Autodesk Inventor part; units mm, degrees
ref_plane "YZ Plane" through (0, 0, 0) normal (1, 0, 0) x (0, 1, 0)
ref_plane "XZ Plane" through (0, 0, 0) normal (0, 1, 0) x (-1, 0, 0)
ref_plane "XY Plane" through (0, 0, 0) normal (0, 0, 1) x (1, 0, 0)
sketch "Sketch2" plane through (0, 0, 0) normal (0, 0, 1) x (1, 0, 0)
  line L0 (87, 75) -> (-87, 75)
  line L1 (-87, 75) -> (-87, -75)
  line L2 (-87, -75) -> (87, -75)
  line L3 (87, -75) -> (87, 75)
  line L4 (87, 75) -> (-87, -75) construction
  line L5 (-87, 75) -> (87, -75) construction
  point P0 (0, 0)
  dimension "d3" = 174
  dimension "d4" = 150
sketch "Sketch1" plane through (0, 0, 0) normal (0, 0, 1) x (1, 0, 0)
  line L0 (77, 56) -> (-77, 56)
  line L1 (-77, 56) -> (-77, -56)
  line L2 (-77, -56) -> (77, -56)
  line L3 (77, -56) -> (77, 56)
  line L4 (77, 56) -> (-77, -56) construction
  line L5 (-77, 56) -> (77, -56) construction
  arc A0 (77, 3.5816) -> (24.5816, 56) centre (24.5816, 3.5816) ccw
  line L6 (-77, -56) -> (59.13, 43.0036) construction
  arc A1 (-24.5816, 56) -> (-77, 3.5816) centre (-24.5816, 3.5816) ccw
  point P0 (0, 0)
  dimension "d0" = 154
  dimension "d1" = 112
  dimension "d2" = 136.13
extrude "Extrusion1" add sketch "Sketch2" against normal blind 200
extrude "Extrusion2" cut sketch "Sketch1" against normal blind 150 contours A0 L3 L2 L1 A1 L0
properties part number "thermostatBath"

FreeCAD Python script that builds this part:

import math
import FreeCAD as App
import Part
import Sketcher
from FreeCAD import Vector


def add_polygon(sketch, points):
    """Adds a closed chain of lines whose ends are joined by coincident constraints."""
    first, n = sketch.GeometryCount, len(points)
    for a, b in zip(points, points[1:] + points[:1]):
        sketch.addGeometry(Part.LineSegment(App.Vector(*a, 0), App.Vector(*b, 0)), False)
    for i in range(n):
        sketch.addConstraint(Sketcher.Constraint("Coincident", first + i, 2, first + (i + 1) % n, 1))

doc = App.newDocument("Part")
params = doc.addObject("Spreadsheet::Sheet", "Params")
for row, (alias, value) in enumerate([
    ("sketch1_width", "174 mm"),
    ("sketch1_height", "150 mm"),
    ("pad1_length", "200 mm"),
    ("sketch2_width", "154 mm"),
    ("pocket1_length", "150 mm"),
], start=1):
    params.set(f"A{row}", alias)
    params.set(f"B{row}", "=" + value)
    params.setAlias(f"B{row}", alias)

body = doc.addObject("PartDesign::Body", "Body")

# Sketch on XY plane
sketch1 = body.newObject("Sketcher::SketchObject", "Sketch")
sketch1.AttachmentSupport = (doc.getObject("XY_Plane"), [""])
sketch1.MapMode = "FlatFace"
add_polygon(sketch1, [(87, -75), (87, 75), (-87, 75), (-87, -75)])  # lines 0-3
sketch1.addConstraint([
    Sketcher.Constraint("Vertical", 0),
    Sketcher.Constraint("Horizontal", 1),
    Sketcher.Constraint("Vertical", 2),
    Sketcher.Constraint("Horizontal", 3),
    Sketcher.Constraint("Symmetric", 0, 2, 2, 2, -1, 1),
    Sketcher.Constraint("DistanceX", 1, 2, 1, 1, 174.0),
    Sketcher.Constraint("DistanceY", 0, 1, 0, 2, 150.0),
])
sketch1.setExpression("Constraints[9]", "Params.sketch1_width")
sketch1.setExpression("Constraints[10]", "Params.sketch1_height")
pad1 = body.newObject("PartDesign::Pad", "Pad")
pad1.Profile = sketch1
pad1.setExpression("Length", "Params.pad1_length")
pad1.Reversed = True

# Sketch on XY plane
sketch2 = body.newObject("Sketcher::SketchObject", "Sketch001")
sketch2.AttachmentSupport = (doc.getObject("XY_Plane"), [""])
sketch2.MapMode = "FlatFace"
sketch2.addGeometry([
    Part.ArcOfCircle(Part.Circle(Vector(24.5816, 3.5816, 0), Vector(0, 0, 1), 52.4184), math.radians(0), math.radians(90)),  # 0
    Part.LineSegment(Vector(24.5816, 56, 0), Vector(-24.5816, 56, 0)),  # 1
    Part.ArcOfCircle(Part.Circle(Vector(-24.5816, 3.5816, 0), Vector(0, 0, 1), 52.4184), math.radians(90), math.radians(180)),  # 2
    Part.LineSegment(Vector(-77, 3.5816, 0), Vector(-77, -56, 0)),  # 3
    Part.LineSegment(Vector(-77, -56, 0), Vector(77, -56, 0)),  # 4
    Part.LineSegment(Vector(77, -56, 0), Vector(77, 3.5816, 0)),  # 5
], False)
sketch2.addConstraint([
    Sketcher.Constraint("Tangent", 0, 2, 1, 1),
    Sketcher.Constraint("Tangent", 1, 2, 2, 1),
    Sketcher.Constraint("Tangent", 2, 2, 3, 1),
    Sketcher.Constraint("Coincident", 3, 2, 4, 1),
    Sketcher.Constraint("Coincident", 4, 2, 5, 1),
    Sketcher.Constraint("Tangent", 5, 2, 0, 1),
    Sketcher.Constraint("Horizontal", 1),
    Sketcher.Constraint("Vertical", 3),
    Sketcher.Constraint("Horizontal", 4),
    Sketcher.Constraint("Vertical", 5),
    Sketcher.Constraint("Equal", 0, 2),
    Sketcher.Constraint("DistanceX", 4, 1, 4, 2, 154.0),
    Sketcher.Constraint("DistanceY", 3, 2, 1, 2, 112.0),
    Sketcher.Constraint("DistanceY", -1, 1, 0, 2, 56.0),
    Sketcher.Constraint("DistanceX", 2, 2, -1, 1, 77.0),
    Sketcher.Constraint("Radius", 0, 52.4184),
])
sketch2.setExpression("Constraints[11]", "Params.sketch2_width")
pocket1 = body.newObject("PartDesign::Pocket", "Pocket")
pocket1.Profile = sketch2
pocket1.setExpression("Length", "Params.pocket1_length")

doc.recompute()
